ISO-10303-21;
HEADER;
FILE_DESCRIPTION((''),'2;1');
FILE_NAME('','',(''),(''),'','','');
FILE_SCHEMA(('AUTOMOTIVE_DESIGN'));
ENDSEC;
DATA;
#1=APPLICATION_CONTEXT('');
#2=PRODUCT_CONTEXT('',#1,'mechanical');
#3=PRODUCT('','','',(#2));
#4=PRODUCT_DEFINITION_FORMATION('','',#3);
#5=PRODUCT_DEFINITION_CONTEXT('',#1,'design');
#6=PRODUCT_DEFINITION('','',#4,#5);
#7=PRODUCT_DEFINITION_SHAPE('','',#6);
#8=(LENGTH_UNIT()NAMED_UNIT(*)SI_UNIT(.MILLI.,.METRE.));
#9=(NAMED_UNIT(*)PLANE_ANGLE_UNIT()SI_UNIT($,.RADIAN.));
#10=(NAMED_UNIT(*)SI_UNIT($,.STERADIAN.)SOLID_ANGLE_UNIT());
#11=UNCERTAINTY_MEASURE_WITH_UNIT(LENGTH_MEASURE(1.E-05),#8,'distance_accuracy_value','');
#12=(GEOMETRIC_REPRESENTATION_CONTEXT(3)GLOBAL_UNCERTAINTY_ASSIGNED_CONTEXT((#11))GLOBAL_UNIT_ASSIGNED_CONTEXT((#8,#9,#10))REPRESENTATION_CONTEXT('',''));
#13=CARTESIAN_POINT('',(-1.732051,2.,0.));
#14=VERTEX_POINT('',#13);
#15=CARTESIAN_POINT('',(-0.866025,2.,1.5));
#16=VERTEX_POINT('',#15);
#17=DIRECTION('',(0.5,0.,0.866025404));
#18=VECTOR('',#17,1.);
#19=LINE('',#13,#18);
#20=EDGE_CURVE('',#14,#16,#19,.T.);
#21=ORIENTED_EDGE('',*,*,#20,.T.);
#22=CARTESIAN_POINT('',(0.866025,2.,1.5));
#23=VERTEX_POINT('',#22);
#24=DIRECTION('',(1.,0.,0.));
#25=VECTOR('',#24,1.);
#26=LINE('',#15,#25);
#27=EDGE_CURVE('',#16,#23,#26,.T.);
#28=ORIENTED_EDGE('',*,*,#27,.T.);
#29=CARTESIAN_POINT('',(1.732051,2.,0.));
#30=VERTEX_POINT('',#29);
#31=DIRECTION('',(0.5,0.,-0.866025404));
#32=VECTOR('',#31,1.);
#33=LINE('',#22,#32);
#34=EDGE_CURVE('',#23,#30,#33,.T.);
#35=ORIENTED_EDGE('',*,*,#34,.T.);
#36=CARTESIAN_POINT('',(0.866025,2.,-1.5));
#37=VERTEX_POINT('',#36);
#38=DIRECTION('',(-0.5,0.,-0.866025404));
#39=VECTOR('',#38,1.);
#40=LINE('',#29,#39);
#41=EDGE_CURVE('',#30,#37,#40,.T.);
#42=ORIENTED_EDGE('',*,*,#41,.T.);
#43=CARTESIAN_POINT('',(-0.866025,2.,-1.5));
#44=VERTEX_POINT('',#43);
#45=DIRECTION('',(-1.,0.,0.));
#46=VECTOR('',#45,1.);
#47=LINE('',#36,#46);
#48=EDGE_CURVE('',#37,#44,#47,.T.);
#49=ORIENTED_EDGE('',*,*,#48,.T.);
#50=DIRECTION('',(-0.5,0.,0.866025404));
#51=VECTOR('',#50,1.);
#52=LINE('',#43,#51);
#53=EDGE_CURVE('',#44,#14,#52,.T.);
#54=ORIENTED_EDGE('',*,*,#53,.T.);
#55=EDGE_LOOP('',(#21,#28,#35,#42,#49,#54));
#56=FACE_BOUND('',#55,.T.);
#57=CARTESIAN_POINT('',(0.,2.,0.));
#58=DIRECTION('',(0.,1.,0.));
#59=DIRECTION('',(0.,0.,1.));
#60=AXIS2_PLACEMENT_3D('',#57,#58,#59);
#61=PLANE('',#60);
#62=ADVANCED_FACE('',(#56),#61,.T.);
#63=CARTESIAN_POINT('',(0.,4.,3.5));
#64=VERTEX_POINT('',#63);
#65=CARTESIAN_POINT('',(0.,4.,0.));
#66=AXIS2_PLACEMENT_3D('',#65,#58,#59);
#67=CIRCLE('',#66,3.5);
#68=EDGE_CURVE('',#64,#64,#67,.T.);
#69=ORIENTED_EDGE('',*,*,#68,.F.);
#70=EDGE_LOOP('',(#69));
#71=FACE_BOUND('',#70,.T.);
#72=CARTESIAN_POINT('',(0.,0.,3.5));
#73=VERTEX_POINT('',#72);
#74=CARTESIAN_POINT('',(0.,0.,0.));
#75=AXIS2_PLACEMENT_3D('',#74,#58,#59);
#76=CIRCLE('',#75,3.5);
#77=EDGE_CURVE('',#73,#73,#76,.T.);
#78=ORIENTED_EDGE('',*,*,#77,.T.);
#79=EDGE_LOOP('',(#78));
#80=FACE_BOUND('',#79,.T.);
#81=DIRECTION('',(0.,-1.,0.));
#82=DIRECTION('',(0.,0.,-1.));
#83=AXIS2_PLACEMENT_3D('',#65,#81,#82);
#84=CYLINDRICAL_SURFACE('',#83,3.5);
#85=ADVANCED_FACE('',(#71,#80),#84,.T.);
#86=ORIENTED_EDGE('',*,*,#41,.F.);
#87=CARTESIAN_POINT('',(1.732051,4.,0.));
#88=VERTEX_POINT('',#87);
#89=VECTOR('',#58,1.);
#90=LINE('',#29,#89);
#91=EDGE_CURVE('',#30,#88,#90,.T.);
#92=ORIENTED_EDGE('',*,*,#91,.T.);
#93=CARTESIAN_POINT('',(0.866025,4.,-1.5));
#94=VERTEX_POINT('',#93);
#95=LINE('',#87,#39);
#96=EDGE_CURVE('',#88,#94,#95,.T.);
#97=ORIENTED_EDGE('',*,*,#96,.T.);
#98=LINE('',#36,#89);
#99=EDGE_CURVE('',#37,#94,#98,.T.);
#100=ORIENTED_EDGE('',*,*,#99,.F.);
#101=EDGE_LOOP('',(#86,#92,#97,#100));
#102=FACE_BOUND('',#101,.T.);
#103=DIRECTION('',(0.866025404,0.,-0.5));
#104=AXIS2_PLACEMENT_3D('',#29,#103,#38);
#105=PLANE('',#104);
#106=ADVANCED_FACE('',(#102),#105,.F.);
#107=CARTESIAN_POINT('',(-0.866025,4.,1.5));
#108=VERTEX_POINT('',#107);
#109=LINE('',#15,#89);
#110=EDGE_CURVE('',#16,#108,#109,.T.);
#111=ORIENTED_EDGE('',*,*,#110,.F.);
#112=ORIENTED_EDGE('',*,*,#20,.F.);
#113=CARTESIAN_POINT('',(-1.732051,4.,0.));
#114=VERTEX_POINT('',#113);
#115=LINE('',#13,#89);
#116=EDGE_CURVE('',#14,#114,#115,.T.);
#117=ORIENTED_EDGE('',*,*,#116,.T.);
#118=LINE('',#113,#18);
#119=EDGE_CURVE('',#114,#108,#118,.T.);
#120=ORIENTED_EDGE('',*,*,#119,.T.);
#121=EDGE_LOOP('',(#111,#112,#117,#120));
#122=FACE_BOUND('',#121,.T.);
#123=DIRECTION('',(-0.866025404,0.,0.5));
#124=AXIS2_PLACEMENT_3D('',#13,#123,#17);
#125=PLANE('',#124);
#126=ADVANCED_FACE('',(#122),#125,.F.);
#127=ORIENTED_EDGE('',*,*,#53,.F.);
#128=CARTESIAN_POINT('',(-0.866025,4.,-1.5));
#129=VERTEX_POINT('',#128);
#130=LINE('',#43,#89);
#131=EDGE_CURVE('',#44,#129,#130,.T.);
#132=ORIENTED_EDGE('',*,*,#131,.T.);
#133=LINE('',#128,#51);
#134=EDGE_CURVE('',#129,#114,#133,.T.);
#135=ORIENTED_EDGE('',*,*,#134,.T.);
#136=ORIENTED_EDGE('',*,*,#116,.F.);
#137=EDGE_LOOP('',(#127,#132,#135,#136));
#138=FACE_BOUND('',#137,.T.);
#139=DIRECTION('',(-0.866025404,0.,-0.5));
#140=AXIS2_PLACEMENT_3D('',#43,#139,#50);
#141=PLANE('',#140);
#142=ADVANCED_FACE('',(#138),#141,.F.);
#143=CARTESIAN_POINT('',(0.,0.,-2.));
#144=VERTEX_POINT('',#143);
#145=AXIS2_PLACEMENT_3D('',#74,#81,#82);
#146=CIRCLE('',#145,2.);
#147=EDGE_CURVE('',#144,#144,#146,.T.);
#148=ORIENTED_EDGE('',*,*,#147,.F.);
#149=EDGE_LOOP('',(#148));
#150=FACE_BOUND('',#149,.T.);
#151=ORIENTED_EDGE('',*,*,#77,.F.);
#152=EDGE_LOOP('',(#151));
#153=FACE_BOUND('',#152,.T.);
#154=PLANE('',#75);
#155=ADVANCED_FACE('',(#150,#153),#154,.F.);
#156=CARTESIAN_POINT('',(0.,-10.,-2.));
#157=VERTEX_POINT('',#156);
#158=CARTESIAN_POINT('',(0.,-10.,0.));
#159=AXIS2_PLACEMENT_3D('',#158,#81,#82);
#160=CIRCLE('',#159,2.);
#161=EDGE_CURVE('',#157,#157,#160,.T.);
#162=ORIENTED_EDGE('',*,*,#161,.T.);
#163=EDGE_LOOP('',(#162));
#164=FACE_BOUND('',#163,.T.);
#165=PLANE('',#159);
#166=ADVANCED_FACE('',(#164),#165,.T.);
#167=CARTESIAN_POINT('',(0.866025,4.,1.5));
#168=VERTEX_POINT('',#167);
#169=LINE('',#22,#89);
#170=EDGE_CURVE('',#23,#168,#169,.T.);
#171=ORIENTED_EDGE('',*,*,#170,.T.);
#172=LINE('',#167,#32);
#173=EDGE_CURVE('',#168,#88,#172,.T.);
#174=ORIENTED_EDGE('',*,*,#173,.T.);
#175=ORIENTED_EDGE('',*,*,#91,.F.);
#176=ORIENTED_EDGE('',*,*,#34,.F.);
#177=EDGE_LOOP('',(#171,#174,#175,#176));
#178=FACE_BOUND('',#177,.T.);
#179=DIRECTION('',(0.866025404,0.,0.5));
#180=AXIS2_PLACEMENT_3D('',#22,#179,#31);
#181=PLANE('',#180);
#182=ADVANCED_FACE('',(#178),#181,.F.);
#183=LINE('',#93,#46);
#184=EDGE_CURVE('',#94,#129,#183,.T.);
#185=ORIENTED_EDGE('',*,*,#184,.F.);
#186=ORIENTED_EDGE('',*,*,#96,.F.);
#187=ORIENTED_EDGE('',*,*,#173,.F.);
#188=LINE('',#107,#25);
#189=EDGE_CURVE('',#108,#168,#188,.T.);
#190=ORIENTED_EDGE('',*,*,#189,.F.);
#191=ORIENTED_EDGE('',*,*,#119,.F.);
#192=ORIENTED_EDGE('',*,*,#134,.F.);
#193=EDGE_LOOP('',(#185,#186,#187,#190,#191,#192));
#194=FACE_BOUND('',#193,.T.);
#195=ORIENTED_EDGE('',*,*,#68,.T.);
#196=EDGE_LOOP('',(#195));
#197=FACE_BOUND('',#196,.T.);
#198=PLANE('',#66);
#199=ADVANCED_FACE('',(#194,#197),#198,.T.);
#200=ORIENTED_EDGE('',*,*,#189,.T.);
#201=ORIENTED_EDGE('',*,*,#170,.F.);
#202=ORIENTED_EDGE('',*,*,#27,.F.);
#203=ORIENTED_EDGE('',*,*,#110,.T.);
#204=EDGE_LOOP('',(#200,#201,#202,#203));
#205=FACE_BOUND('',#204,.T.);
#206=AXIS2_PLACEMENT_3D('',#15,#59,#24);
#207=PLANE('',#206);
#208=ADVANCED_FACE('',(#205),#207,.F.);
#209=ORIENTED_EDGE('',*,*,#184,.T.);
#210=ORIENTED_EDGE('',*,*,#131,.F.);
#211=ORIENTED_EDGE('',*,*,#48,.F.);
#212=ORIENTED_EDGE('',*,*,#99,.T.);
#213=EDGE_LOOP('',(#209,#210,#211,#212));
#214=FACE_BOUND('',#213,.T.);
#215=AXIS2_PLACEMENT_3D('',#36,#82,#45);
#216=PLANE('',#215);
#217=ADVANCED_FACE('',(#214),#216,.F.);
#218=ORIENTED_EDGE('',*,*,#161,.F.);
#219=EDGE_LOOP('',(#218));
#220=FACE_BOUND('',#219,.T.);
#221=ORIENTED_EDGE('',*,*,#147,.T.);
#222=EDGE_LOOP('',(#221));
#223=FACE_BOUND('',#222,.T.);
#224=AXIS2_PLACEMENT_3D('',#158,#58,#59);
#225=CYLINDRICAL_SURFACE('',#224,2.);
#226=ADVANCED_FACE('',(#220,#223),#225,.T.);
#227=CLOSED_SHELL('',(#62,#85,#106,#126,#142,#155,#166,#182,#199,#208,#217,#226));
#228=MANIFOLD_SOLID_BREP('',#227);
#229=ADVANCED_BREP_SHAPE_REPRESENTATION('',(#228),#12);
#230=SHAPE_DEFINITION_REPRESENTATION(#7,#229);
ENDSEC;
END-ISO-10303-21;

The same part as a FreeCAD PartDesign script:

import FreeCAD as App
import Part
import Sketcher
from FreeCAD import Vector
Q = App.Units.Quantity


def add_polygon(sketch, points):
    """Adds a closed chain of lines whose ends are joined by coincident constraints."""
    first, n = sketch.GeometryCount, len(points)
    for a, b in zip(points, points[1:] + points[:1]):
        sketch.addGeometry(Part.LineSegment(App.Vector(*a, 0), App.Vector(*b, 0)), False)
    for i in range(n):
        sketch.addConstraint(Sketcher.Constraint("Coincident", first + i, 2, first + (i + 1) % n, 1))

doc = App.newDocument("Part")
body = doc.addObject("PartDesign::Body", "Body")

# Sketch on XZ plane
sketch1 = body.newObject("Sketcher::SketchObject", "Sketch")
sketch1.AttachmentSupport = (doc.getObject("XZ_Plane"), [""])
sketch1.MapMode = "FlatFace"
sketch1.addGeometry(Part.Circle(Vector(0, 0, 0), Vector(0, 0, 1), 3.5), False)
sketch1.addConstraint([
    Sketcher.Constraint("Coincident", 0, 3, -1, 1),
    Sketcher.Constraint("Diameter", 0, 7.0),
])
pad1 = body.newObject("PartDesign::Pad", "Pad")
pad1.Profile = sketch1
pad1.Length = 4
pad1.Reversed = True

# Sketch on XZ plane
sketch2 = body.newObject("Sketcher::SketchObject", "Sketch001")
sketch2.AttachmentSupport = (doc.getObject("XZ_Plane"), [""])
sketch2.MapMode = "FlatFace"
sketch2.AttachmentOffset = App.Placement(Vector(0, 0, -4), App.Rotation())
add_polygon(sketch2, [(1.7, 0), (0.9, -1.5), (-0.9, -1.5), (-1.7, 0), (-0.9, 1.5), (0.9, 1.5)])  # lines 0-5
sketch2.addConstraint([
    Sketcher.Constraint("Horizontal", 1),
    Sketcher.Constraint("Horizontal", 4),
    Sketcher.Constraint("Symmetric", 0, 2, 3, 2, -1, 1),
    Sketcher.Constraint("Symmetric", 2, 2, 5, 2, -1, 1),
    Sketcher.Constraint("PointOnObject", 2, 2, -1),
    Sketcher.Constraint("Parallel", 2, 5),
    Sketcher.Constraint("Vertical", 1, 2, 3, 2),
    Sketcher.Constraint("Angle", 0, Q("-120 deg")),
    Sketcher.Constraint("DistanceY", 1, 2, 3, 2, 3.0),
    Sketcher.Constraint("DistanceX", 1, 2, 1, 1, 1.732051),
])
pocket1 = body.newObject("PartDesign::Pocket", "Pocket")
pocket1.Profile = sketch2
pocket1.Length = 2
pocket1.Reversed = True

# Sketch on XZ plane
sketch3 = body.newObject("Sketcher::SketchObject", "Sketch002")
sketch3.AttachmentSupport = (doc.getObject("XZ_Plane"), [""])
sketch3.MapMode = "FlatFace"
sketch3.addGeometry(Part.Circle(Vector(0, 0, 0), Vector(0, 0, 1), 2), False)
sketch3.addConstraint([
    Sketcher.Constraint("Coincident", 0, 3, -1, 1),
    Sketcher.Constraint("Diameter", 0, 4.0),
])
pad2 = body.newObject("PartDesign::Pad", "Pad001")
pad2.Profile = sketch3
pad2.Length = 10

doc.recompute()
